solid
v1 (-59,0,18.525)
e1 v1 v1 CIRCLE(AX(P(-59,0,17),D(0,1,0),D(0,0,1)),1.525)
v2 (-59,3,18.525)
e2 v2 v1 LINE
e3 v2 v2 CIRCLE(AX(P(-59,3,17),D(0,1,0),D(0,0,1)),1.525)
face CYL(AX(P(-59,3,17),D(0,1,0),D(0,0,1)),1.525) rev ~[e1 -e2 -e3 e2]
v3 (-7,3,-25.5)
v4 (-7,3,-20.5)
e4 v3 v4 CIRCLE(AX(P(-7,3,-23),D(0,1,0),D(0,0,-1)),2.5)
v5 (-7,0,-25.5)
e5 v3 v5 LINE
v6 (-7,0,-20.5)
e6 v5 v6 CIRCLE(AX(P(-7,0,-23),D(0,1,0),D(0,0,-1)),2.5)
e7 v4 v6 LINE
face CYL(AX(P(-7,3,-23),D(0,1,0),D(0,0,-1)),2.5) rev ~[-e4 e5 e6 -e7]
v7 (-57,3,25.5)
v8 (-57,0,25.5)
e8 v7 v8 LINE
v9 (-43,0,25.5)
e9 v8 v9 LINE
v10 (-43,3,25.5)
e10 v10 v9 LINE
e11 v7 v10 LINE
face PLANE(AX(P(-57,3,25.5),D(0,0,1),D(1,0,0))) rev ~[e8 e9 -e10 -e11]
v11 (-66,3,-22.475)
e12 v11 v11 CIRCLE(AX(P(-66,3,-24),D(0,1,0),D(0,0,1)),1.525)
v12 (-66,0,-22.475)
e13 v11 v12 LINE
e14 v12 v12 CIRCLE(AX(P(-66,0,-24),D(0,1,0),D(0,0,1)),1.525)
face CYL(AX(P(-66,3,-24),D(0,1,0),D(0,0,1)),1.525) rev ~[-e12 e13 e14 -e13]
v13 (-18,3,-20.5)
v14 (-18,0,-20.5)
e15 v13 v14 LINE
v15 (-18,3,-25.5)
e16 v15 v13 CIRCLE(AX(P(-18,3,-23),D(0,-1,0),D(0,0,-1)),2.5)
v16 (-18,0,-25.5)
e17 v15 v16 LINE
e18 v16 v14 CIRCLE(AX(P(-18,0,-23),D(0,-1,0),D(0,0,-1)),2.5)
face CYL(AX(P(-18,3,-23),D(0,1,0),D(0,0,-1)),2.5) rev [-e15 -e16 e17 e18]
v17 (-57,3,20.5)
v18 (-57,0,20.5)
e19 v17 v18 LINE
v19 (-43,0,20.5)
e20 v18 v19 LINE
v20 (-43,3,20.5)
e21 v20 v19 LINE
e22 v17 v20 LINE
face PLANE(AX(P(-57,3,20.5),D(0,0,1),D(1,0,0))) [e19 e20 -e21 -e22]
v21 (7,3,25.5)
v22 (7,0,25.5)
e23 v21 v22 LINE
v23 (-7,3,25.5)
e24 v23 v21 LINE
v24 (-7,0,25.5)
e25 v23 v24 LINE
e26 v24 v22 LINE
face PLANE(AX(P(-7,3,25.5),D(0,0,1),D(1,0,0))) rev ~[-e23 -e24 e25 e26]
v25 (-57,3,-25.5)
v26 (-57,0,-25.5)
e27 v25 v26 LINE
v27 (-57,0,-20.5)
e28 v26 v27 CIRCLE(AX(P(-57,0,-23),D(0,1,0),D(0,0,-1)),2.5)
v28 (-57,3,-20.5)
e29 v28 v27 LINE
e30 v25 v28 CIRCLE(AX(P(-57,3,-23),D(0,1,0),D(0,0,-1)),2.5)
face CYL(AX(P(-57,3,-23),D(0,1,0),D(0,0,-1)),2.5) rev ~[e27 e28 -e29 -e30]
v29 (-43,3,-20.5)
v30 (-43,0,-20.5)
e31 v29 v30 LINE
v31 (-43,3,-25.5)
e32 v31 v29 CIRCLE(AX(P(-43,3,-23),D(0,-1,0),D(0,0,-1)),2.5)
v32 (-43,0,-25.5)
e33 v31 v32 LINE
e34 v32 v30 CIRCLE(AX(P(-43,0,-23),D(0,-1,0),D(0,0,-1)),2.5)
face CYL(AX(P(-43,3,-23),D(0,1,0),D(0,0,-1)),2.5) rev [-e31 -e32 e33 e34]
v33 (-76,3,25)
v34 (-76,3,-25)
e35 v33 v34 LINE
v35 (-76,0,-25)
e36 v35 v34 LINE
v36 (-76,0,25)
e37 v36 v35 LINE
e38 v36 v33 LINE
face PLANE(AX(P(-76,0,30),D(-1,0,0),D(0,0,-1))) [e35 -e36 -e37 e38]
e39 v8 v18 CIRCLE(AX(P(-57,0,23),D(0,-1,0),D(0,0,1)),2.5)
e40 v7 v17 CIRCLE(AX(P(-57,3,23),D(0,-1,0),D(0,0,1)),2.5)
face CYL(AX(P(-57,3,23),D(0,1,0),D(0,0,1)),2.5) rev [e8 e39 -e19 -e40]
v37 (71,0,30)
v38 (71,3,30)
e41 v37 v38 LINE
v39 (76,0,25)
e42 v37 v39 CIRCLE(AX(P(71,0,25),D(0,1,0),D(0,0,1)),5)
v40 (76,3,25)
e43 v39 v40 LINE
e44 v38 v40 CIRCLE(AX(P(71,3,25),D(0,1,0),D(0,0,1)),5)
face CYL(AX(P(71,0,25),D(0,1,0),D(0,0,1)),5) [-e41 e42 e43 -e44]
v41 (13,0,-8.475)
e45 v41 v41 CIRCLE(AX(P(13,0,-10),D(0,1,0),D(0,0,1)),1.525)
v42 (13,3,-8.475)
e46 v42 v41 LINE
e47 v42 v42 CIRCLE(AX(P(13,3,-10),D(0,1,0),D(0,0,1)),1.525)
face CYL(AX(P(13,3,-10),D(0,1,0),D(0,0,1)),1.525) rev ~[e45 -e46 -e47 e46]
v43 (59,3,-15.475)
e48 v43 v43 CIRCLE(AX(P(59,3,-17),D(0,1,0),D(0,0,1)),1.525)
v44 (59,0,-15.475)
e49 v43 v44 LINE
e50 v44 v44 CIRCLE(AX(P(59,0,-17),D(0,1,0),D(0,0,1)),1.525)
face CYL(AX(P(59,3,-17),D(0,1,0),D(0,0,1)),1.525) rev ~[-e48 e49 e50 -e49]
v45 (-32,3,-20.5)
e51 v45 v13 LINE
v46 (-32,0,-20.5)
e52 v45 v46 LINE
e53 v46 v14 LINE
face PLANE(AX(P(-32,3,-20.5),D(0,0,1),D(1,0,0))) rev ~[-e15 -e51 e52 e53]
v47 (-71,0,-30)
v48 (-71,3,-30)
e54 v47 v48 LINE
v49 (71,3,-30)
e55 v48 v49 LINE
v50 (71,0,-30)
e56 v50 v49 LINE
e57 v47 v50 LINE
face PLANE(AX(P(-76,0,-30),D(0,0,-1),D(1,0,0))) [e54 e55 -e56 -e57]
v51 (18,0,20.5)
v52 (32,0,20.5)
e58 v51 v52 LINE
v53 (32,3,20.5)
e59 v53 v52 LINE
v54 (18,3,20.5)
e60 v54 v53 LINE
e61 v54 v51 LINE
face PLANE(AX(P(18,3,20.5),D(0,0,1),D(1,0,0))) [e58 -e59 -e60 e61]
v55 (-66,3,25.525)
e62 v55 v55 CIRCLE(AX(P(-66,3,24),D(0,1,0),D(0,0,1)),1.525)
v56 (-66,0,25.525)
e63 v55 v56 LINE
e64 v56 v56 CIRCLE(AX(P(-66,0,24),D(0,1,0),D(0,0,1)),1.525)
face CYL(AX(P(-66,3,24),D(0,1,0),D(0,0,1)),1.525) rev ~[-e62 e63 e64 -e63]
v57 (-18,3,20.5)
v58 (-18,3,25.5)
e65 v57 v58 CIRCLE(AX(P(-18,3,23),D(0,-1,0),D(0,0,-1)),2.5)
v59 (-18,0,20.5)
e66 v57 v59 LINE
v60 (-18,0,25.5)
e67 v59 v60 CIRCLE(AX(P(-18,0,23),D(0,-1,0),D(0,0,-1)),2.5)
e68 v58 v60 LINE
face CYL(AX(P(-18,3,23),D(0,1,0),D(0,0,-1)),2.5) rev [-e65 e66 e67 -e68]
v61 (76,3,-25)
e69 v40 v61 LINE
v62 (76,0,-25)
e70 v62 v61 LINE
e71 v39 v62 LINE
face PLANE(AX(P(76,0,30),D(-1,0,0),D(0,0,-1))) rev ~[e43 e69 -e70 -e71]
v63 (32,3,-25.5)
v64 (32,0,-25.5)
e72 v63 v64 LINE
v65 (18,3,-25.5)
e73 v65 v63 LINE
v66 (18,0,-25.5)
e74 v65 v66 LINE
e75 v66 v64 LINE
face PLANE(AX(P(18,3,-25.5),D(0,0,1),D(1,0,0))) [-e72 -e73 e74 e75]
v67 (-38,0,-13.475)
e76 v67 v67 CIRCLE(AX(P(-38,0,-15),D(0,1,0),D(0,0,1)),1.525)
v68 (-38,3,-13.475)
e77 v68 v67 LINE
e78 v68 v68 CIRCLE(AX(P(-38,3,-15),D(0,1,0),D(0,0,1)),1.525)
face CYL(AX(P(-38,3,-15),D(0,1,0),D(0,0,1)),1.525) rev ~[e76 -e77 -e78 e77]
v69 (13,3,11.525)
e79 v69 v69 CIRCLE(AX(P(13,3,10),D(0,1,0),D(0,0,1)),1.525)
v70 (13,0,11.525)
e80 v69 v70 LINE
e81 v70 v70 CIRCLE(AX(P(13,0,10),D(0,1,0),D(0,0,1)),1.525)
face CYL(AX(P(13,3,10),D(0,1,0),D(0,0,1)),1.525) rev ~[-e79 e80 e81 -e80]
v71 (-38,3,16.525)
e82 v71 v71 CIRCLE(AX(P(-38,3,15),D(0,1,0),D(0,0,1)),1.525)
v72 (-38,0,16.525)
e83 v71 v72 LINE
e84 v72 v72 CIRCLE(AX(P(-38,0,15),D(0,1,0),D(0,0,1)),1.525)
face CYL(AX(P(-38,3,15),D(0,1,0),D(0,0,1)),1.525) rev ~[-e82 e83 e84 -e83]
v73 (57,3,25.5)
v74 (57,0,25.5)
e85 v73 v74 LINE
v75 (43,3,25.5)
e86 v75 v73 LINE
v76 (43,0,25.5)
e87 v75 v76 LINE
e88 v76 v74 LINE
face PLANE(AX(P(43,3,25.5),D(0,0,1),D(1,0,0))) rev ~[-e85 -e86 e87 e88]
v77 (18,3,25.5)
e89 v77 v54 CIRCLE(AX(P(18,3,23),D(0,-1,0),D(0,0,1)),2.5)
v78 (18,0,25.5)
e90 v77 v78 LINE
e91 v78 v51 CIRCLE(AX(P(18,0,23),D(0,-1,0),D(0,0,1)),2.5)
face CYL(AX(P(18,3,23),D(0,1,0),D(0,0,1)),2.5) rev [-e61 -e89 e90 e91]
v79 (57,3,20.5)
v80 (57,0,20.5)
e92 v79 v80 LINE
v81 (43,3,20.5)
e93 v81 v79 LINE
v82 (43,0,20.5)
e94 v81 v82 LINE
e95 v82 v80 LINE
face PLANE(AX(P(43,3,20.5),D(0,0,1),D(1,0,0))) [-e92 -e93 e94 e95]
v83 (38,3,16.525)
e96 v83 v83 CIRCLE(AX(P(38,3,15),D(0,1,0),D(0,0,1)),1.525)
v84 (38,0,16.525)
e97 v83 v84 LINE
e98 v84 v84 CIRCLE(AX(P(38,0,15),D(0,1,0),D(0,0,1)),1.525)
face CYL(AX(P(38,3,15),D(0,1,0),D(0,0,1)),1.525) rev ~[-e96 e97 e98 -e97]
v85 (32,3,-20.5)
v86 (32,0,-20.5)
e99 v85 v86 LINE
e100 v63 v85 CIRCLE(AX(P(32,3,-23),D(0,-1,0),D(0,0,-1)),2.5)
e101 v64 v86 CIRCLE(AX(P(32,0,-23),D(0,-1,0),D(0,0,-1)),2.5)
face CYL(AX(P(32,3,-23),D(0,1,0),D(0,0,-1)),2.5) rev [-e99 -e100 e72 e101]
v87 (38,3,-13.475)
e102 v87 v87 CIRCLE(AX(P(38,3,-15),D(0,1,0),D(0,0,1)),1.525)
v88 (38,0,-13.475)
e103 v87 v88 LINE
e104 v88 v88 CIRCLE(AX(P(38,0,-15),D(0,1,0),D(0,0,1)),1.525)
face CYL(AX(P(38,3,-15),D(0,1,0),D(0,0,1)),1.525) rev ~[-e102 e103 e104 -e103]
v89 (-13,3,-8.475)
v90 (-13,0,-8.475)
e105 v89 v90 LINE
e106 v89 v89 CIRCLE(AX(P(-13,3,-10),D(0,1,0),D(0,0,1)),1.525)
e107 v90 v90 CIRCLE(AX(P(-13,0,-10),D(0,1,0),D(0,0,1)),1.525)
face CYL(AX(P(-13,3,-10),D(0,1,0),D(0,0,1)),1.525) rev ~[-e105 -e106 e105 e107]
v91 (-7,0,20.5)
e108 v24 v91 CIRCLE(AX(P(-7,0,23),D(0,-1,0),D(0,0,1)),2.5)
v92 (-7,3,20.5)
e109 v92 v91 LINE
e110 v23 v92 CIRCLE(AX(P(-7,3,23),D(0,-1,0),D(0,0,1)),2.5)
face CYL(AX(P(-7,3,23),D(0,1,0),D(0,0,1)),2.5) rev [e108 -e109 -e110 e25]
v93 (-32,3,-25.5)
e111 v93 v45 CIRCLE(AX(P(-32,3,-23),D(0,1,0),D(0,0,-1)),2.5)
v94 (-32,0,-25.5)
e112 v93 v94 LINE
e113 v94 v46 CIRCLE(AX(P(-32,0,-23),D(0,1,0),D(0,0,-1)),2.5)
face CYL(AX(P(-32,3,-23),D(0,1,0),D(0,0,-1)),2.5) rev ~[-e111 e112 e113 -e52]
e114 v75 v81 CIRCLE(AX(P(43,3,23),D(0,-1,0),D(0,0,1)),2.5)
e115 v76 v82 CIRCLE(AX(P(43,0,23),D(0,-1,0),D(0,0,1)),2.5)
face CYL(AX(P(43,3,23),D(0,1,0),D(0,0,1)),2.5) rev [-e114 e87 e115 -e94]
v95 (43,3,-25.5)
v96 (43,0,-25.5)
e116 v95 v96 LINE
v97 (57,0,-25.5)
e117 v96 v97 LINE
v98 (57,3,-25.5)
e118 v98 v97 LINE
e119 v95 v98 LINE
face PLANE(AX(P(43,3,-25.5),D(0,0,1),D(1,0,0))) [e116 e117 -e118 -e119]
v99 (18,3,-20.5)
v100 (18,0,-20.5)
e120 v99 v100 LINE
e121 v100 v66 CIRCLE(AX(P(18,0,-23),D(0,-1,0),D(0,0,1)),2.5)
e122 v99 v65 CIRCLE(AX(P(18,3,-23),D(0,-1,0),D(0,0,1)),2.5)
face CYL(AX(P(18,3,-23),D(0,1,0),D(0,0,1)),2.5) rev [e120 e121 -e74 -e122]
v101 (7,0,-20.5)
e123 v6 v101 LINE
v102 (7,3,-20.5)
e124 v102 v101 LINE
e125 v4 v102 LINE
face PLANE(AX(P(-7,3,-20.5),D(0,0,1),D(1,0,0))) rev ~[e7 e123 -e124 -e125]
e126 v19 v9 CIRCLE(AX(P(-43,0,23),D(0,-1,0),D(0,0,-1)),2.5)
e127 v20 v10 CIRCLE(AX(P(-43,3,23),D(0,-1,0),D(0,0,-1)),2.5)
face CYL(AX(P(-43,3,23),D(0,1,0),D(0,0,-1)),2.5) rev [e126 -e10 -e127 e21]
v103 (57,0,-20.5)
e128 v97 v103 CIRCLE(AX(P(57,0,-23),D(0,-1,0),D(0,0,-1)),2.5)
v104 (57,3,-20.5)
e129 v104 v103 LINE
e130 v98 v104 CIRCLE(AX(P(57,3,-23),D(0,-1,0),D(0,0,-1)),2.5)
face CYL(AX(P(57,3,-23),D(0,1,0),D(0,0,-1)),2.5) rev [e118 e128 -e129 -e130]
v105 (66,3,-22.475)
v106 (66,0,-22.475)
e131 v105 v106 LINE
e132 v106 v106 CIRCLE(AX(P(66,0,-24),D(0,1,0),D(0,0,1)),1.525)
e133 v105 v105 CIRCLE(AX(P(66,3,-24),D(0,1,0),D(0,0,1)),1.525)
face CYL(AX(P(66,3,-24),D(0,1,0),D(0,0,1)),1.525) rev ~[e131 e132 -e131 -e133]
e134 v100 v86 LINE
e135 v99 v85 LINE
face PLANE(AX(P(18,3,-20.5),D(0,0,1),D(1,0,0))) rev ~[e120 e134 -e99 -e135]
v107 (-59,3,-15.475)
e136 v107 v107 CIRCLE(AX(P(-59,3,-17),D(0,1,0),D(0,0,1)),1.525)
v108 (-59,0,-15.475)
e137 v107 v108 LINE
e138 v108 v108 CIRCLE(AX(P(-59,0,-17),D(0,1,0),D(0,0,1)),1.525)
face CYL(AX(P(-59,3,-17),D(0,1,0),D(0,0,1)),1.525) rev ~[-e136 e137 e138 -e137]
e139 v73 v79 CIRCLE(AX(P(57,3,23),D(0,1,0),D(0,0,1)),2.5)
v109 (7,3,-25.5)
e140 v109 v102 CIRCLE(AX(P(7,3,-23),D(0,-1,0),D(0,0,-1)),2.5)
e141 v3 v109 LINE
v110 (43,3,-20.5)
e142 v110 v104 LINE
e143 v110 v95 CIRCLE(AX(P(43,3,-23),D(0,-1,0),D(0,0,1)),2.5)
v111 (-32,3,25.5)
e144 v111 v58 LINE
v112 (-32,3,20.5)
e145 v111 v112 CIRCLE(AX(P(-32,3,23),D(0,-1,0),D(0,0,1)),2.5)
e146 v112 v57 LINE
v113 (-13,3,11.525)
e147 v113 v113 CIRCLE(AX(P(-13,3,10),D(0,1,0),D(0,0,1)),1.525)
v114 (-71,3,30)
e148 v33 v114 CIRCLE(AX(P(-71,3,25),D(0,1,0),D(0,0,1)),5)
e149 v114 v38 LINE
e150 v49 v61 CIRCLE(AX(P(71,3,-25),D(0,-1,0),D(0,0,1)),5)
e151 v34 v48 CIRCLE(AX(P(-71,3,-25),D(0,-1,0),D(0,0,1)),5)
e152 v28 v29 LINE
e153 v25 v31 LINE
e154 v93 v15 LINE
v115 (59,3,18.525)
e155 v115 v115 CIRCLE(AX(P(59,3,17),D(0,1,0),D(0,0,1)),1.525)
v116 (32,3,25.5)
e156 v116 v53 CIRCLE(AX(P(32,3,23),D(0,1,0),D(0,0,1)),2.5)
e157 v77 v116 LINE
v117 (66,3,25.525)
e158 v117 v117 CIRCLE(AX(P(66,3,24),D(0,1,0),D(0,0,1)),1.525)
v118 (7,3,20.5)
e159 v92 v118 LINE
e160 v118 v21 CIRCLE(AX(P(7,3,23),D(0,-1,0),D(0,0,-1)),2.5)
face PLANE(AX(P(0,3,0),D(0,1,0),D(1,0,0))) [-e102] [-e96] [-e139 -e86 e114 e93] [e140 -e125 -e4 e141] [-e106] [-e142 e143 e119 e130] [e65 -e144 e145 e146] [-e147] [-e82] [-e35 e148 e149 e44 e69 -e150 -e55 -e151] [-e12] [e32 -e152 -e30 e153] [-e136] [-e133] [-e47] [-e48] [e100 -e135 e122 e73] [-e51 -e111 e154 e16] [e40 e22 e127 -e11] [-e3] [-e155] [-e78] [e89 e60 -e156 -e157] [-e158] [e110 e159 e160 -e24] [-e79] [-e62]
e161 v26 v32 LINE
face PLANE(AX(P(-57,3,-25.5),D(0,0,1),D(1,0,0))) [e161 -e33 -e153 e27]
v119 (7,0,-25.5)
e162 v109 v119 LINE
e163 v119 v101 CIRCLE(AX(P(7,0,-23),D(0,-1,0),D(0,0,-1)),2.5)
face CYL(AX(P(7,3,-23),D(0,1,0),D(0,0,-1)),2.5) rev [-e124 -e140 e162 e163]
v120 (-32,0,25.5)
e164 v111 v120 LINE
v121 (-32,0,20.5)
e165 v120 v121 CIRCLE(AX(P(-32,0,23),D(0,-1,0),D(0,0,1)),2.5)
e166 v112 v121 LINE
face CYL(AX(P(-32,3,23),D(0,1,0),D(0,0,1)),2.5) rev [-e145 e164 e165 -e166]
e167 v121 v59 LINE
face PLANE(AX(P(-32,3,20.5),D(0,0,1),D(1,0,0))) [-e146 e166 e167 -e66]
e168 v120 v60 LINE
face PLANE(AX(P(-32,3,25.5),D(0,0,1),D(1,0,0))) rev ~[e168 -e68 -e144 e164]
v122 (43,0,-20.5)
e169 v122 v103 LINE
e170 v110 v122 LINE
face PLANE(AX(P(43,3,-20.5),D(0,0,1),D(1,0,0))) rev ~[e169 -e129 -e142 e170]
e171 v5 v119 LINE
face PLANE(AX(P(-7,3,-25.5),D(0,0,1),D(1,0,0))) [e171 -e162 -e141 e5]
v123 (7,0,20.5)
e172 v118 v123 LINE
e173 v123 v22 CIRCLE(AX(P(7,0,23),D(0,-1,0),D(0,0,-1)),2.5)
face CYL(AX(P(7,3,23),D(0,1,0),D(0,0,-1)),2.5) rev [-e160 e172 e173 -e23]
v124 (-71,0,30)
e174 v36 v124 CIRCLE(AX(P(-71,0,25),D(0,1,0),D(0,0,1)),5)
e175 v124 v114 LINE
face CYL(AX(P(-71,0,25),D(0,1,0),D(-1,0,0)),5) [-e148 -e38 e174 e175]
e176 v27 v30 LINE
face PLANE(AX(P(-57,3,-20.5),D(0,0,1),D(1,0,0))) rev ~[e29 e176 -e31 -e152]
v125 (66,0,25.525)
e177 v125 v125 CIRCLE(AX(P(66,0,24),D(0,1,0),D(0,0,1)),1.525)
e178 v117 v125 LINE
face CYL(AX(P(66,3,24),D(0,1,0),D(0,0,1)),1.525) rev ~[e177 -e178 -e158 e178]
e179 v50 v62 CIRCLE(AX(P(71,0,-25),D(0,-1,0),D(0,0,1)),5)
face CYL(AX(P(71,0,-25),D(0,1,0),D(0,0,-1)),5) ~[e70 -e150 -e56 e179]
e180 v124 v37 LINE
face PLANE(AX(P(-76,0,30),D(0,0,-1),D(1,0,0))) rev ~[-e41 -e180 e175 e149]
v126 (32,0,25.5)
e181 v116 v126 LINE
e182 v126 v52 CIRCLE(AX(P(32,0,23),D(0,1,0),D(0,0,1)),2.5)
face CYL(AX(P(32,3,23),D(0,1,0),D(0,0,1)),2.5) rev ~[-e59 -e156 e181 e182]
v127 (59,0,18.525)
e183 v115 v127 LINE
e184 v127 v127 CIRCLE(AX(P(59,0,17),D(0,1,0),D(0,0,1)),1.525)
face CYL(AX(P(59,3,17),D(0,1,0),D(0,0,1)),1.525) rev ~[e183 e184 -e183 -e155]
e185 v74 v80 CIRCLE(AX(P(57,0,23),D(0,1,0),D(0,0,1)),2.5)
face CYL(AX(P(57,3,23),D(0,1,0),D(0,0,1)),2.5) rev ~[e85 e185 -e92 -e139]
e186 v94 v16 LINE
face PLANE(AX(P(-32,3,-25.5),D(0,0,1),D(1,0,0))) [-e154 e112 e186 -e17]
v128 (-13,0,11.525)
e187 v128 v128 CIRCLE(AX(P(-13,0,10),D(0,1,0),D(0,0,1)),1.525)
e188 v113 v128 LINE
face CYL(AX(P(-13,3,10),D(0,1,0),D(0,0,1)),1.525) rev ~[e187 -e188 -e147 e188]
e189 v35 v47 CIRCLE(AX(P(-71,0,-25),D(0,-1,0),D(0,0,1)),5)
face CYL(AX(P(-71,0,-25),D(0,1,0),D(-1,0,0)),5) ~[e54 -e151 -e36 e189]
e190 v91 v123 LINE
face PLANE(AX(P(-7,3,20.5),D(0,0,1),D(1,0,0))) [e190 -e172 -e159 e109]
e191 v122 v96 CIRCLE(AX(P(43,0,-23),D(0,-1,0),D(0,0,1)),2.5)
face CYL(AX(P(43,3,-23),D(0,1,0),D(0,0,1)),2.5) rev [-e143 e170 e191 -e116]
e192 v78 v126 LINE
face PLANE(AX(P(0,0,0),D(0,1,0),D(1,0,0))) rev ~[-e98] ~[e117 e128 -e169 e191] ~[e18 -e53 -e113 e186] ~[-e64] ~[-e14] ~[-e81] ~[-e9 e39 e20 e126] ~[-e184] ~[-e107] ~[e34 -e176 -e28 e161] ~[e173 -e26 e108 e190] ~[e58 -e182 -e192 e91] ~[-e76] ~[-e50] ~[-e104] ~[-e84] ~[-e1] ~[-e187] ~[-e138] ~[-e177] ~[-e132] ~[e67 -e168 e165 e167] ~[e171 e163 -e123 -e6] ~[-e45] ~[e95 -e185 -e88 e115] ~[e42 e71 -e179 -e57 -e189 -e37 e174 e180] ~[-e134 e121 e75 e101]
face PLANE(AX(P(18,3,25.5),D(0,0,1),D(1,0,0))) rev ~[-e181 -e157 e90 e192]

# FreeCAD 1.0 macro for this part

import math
import FreeCAD as App
import Part
import Sketcher
from FreeCAD import Vector
Q = App.Units.Quantity


def edges_at(feature, points):
    """Names of the edges that pass closest to the given points."""
    edges = feature.Shape.Edges
    near = lambda p: min(range(len(edges)), key=lambda i: edges[i].distToShape(Part.Vertex(*p))[0])
    return sorted({f"Edge{near(p) + 1}" for p in points})

doc = App.newDocument("Part")
body = doc.addObject("PartDesign::Body", "Body")

# Sketch on XZ plane
sketch1 = body.newObject("Sketcher::SketchObject", "Sketch")
sketch1.AttachmentSupport = (doc.getObject("XZ_Plane"), [""])
sketch1.MapMode = "FlatFace"
sketch1.addGeometry(Part.LineSegment(Vector(-76, -30, 0), Vector(-76, 30, 0)), False)
sketch1.addGeometry(Part.LineSegment(Vector(-76, 30, 0), Vector(76, 30, 0)), False)
sketch1.addGeometry(Part.LineSegment(Vector(76, 30, 0), Vector(76, -30, 0)), False)
sketch1.addGeometry(Part.LineSegment(Vector(76, -30, 0), Vector(-76, -30, 0)), False)
sketch1.addConstraint(Sketcher.Constraint("Coincident", 0, 2, 1, 1))
sketch1.addConstraint(Sketcher.Constraint("Coincident", 1, 2, 2, 1))
sketch1.addConstraint(Sketcher.Constraint("Coincident", 2, 2, 3, 1))
sketch1.addConstraint(Sketcher.Constraint("Coincident", 3, 2, 0, 1))
sketch1.addConstraint(Sketcher.Constraint("Vertical", 0))
sketch1.addConstraint(Sketcher.Constraint("Horizontal", 1))
sketch1.addConstraint(Sketcher.Constraint("Vertical", 2))
sketch1.addConstraint(Sketcher.Constraint("Horizontal", 3))
sketch1.addConstraint(Sketcher.Constraint("Symmetric", 0, 2, 2, 2, -1, 1))
sketch1.addConstraint(Sketcher.Constraint("DistanceX", 1, 1, 1, 2, Q("152 mm")))
sketch1.addConstraint(Sketcher.Constraint("DistanceY", 0, 1, 0, 2, Q("60 mm")))
pad1 = body.newObject("PartDesign::Pad", "Pad")
pad1.Profile = sketch1
pad1.Length = 3
pad1.Reversed = True

# Sketch on XZ plane
sketch2 = body.newObject("Sketcher::SketchObject", "Sketch001")
sketch2.AttachmentSupport = (doc.getObject("XZ_Plane"), [""])
sketch2.MapMode = "FlatFace"
sketch2.AttachmentOffset = App.Placement(Vector(0, 0, -3), App.Rotation())
sketch2.addGeometry(Part.Circle(Vector(-66, 24, 0), Vector(0, 0, 1), 1.5), False)
sketch2.addConstraint(Sketcher.Constraint("Diameter", 0, Q("3.05 mm")))
sketch2.addConstraint(Sketcher.Constraint("DistanceX", 0, 3, -1, 1, Q("66 mm")))
sketch2.addConstraint(Sketcher.Constraint("DistanceY", -1, 1, 0, 3, Q("24 mm")))
pocket1 = body.newObject("PartDesign::Pocket", "Pocket")
pocket1.Profile = sketch2
pocket1.Type = "UpToFirst"
pocket1.Reversed = True

# Sketch on XZ plane
sketch3 = body.newObject("Sketcher::SketchObject", "Sketch002")
sketch3.AttachmentSupport = (doc.getObject("XZ_Plane"), [""])
sketch3.MapMode = "FlatFace"
sketch3.AttachmentOffset = App.Placement(Vector(0, 0, -3), App.Rotation())
sketch3.addGeometry(Part.Circle(Vector(-66, -24, 0), Vector(0, 0, 1), 1.5), False)
sketch3.addConstraint(Sketcher.Constraint("Diameter", 0, Q("3.05 mm")))
sketch3.addConstraint(Sketcher.Constraint("DistanceX", 0, 3, -1, 1, Q("66 mm")))
sketch3.addConstraint(Sketcher.Constraint("DistanceY", 0, 3, -1, 1, Q("24 mm")))
pocket2 = body.newObject("PartDesign::Pocket", "Pocket001")
pocket2.Profile = sketch3
pocket2.Type = "UpToFirst"
pocket2.Reversed = True

# Sketch on XZ plane
sketch4 = body.newObject("Sketcher::SketchObject", "Sketch003")
sketch4.AttachmentSupport = (doc.getObject("XZ_Plane"), [""])
sketch4.MapMode = "FlatFace"
sketch4.AttachmentOffset = App.Placement(Vector(0, 0, -3), App.Rotation())
sketch4.addGeometry(Part.Circle(Vector(66, 24, 0), Vector(0, 0, 1), 1.5), False)
sketch4.addConstraint(Sketcher.Constraint("Diameter", 0, Q("3.05 mm")))
sketch4.addConstraint(Sketcher.Constraint("DistanceX", -1, 1, 0, 3, Q("66 mm")))
sketch4.addConstraint(Sketcher.Constraint("DistanceY", -1, 1, 0, 3, Q("24 mm")))
pocket3 = body.newObject("PartDesign::Pocket", "Pocket002")
pocket3.Profile = sketch4
pocket3.Type = "UpToFirst"
pocket3.Reversed = True

# Sketch on XZ plane
sketch5 = body.newObject("Sketcher::SketchObject", "Sketch004")
sketch5.AttachmentSupport = (doc.getObject("XZ_Plane"), [""])
sketch5.MapMode = "FlatFace"
sketch5.AttachmentOffset = App.Placement(Vector(0, 0, -3), App.Rotation())
sketch5.addGeometry(Part.Circle(Vector(66, -24, 0), Vector(0, 0, 1), 1.5), False)
sketch5.addConstraint(Sketcher.Constraint("Diameter", 0, Q("3.05 mm")))
sketch5.addConstraint(Sketcher.Constraint("DistanceX", -1, 1, 0, 3, Q("66 mm")))
sketch5.addConstraint(Sketcher.Constraint("DistanceY", 0, 3, -1, 1, Q("24 mm")))
pocket4 = body.newObject("PartDesign::Pocket", "Pocket003")
pocket4.Profile = sketch5
pocket4.Type = "UpToFirst"
pocket4.Reversed = True
doc.recompute()

fillet = body.newObject("PartDesign::Fillet", "Fillet")
fillet.Base = (pocket4, edges_at(pocket4, [
    (76, 1.5, 30),
    (-76, 1.5, 30),
    (-76, 1.5, -30),
    (76, 1.5, -30),
]))
fillet.Radius = 5

# Sketch on XZ plane
sketch6 = body.newObject("Sketcher::SketchObject", "Sketch005")
sketch6.AttachmentSupport = (doc.getObject("XZ_Plane"), [""])
sketch6.MapMode = "FlatFace"
sketch6.AttachmentOffset = App.Placement(Vector(0, 0, -3), App.Rotation())
sketch6.addGeometry(Part.Circle(Vector(-13, -10, 0), Vector(0, 0, 1), 1.5), False)
sketch6.addConstraint(Sketcher.Constraint("Diameter", 0, Q("3.05 mm")))
sketch6.addConstraint(Sketcher.Constraint("DistanceX", 0, 3, -1, 1, Q("13 mm")))
sketch6.addConstraint(Sketcher.Constraint("DistanceY", 0, 3, -1, 1, Q("10 mm")))
pocket5 = body.newObject("PartDesign::Pocket", "Pocket004")
pocket5.Profile = sketch6
pocket5.Type = "UpToFirst"
pocket5.Reversed = True

# Sketch on XZ plane
sketch7 = body.newObject("Sketcher::SketchObject", "Sketch006")
sketch7.AttachmentSupport = (doc.getObject("XZ_Plane"), [""])
sketch7.MapMode = "FlatFace"
sketch7.AttachmentOffset = App.Placement(Vector(0, 0, -3), App.Rotation())
sketch7.addGeometry(Part.Circle(Vector(-38, -15, 0), Vector(0, 0, 1), 1.5), False)
sketch7.addConstraint(Sketcher.Constraint("Diameter", 0, Q("3.05 mm")))
sketch7.addConstraint(Sketcher.Constraint("DistanceX", 0, 3, -1, 1, Q("38 mm")))
sketch7.addConstraint(Sketcher.Constraint("DistanceY", 0, 3, -1, 1, Q("15 mm")))
pocket6 = body.newObject("PartDesign::Pocket", "Pocket005")
pocket6.Profile = sketch7
pocket6.Type = "UpToFirst"
pocket6.Reversed = True

# Sketch on XZ plane
sketch8 = body.newObject("Sketcher::SketchObject", "Sketch007")
sketch8.AttachmentSupport = (doc.getObject("XZ_Plane"), [""])
sketch8.MapMode = "FlatFace"
sketch8.AttachmentOffset = App.Placement(Vector(0, 0, -3), App.Rotation())
sketch8.addGeometry(Part.Circle(Vector(-59, -17, 0), Vector(0, 0, 1), 1.5), False)
sketch8.addConstraint(Sketcher.Constraint("Diameter", 0, Q("3.05 mm")))
sketch8.addConstraint(Sketcher.Constraint("DistanceX", 0, 3, -1, 1, Q("59 mm")))
sketch8.addConstraint(Sketcher.Constraint("DistanceY", 0, 3, -1, 1, Q("17 mm")))
pocket7 = body.newObject("PartDesign::Pocket", "Pocket006")
pocket7.Profile = sketch8
pocket7.Type = "UpToFirst"
pocket7.Reversed = True

# Sketch on XZ plane
sketch9 = body.newObject("Sketcher::SketchObject", "Sketch008")
sketch9.AttachmentSupport = (doc.getObject("XZ_Plane"), [""])
sketch9.MapMode = "FlatFace"
sketch9.AttachmentOffset = App.Placement(Vector(0, 0, -3), App.Rotation())
sketch9.addGeometry(Part.Circle(Vector(-13, 10, 0), Vector(0, 0, 1), 1.5), False)
sketch9.addConstraint(Sketcher.Constraint("Diameter", 0, Q("3.05 mm")))
sketch9.addConstraint(Sketcher.Constraint("DistanceX", 0, 3, -1, 1, Q("13 mm")))
sketch9.addConstraint(Sketcher.Constraint("DistanceY", -1, 1, 0, 3, Q("10 mm")))
pocket8 = body.newObject("PartDesign::Pocket", "Pocket007")
pocket8.Profile = sketch9
pocket8.Type = "UpToFirst"
pocket8.Reversed = True

# Sketch on XZ plane
sketch10 = body.newObject("Sketcher::SketchObject", "Sketch009")
sketch10.AttachmentSupport = (doc.getObject("XZ_Plane"), [""])
sketch10.MapMode = "FlatFace"
sketch10.AttachmentOffset = App.Placement(Vector(0, 0, -3), App.Rotation())
sketch10.addGeometry(Part.Circle(Vector(-38, 15, 0), Vector(0, 0, 1), 1.5), False)
sketch10.addConstraint(Sketcher.Constraint("Diameter", 0, Q("3.05 mm")))
sketch10.addConstraint(Sketcher.Constraint("DistanceX", 0, 3, -1, 1, Q("38 mm")))
sketch10.addConstraint(Sketcher.Constraint("DistanceY", -1, 1, 0, 3, Q("15 mm")))
pocket9 = body.newObject("PartDesign::Pocket", "Pocket008")
pocket9.Profile = sketch10
pocket9.Type = "UpToFirst"
pocket9.Reversed = True

# Sketch on XZ plane
sketch11 = body.newObject("Sketcher::SketchObject", "Sketch010")
sketch11.AttachmentSupport = (doc.getObject("XZ_Plane"), [""])
sketch11.MapMode = "FlatFace"
sketch11.AttachmentOffset = App.Placement(Vector(0, 0, -3), App.Rotation())
sketch11.addGeometry(Part.Circle(Vector(-59, 17, 0), Vector(0, 0, 1), 1.5), False)
sketch11.addConstraint(Sketcher.Constraint("Diameter", 0, Q("3.05 mm")))
sketch11.addConstraint(Sketcher.Constraint("DistanceX", 0, 3, -1, 1, Q("59 mm")))
sketch11.addConstraint(Sketcher.Constraint("DistanceY", -1, 1, 0, 3, Q("17 mm")))
pocket10 = body.newObject("PartDesign::Pocket", "Pocket009")
pocket10.Profile = sketch11
pocket10.Type = "UpToFirst"
pocket10.Reversed = True

# Sketch on XZ plane
sketch12 = body.newObject("Sketcher::SketchObject", "Sketch011")
sketch12.AttachmentSupport = (doc.getObject("XZ_Plane"), [""])
sketch12.MapMode = "FlatFace"
sketch12.AttachmentOffset = App.Placement(Vector(0, 0, -3), App.Rotation())
sketch12.addGeometry(Part.Circle(Vector(13, 10, 0), Vector(0, 0, 1), 1.5), False)
sketch12.addConstraint(Sketcher.Constraint("Diameter", 0, Q("3.05 mm")))
sketch12.addConstraint(Sketcher.Constraint("DistanceX", -1, 1, 0, 3, Q("13 mm")))
sketch12.addConstraint(Sketcher.Constraint("DistanceY", -1, 1, 0, 3, Q("10 mm")))
pocket11 = body.newObject("PartDesign::Pocket", "Pocket010")
pocket11.Profile = sketch12
pocket11.Type = "UpToFirst"
pocket11.Reversed = True

# Sketch on XZ plane
sketch13 = body.newObject("Sketcher::SketchObject", "Sketch012")
sketch13.AttachmentSupport = (doc.getObject("XZ_Plane"), [""])
sketch13.MapMode = "FlatFace"
sketch13.AttachmentOffset = App.Placement(Vector(0, 0, -3), App.Rotation())
sketch13.addGeometry(Part.Circle(Vector(38, 15, 0), Vector(0, 0, 1), 1.5), False)
sketch13.addConstraint(Sketcher.Constraint("Diameter", 0, Q("3.05 mm")))
sketch13.addConstraint(Sketcher.Constraint("DistanceX", -1, 1, 0, 3, Q("38 mm")))
sketch13.addConstraint(Sketcher.Constraint("DistanceY", -1, 1, 0, 3, Q("15 mm")))
pocket12 = body.newObject("PartDesign::Pocket", "Pocket011")
pocket12.Profile = sketch13
pocket12.Type = "UpToFirst"
pocket12.Reversed = True

# Sketch on XZ plane
sketch14 = body.newObject("Sketcher::SketchObject", "Sketch013")
sketch14.AttachmentSupport = (doc.getObject("XZ_Plane"), [""])
sketch14.MapMode = "FlatFace"
sketch14.AttachmentOffset = App.Placement(Vector(0, 0, -3), App.Rotation())
sketch14.addGeometry(Part.Circle(Vector(59, 17, 0), Vector(0, 0, 1), 1.5), False)
sketch14.addConstraint(Sketcher.Constraint("Diameter", 0, Q("3.05 mm")))
sketch14.addConstraint(Sketcher.Constraint("DistanceX", -1, 1, 0, 3, Q("59 mm")))
sketch14.addConstraint(Sketcher.Constraint("DistanceY", -1, 1, 0, 3, Q("17 mm")))
pocket13 = body.newObject("PartDesign::Pocket", "Pocket012")
pocket13.Profile = sketch14
pocket13.Type = "UpToFirst"
pocket13.Reversed = True

# Sketch on XZ plane
sketch15 = body.newObject("Sketcher::SketchObject", "Sketch014")
sketch15.AttachmentSupport = (doc.getObject("XZ_Plane"), [""])
sketch15.MapMode = "FlatFace"
sketch15.AttachmentOffset = App.Placement(Vector(0, 0, -3), App.Rotation())
sketch15.addGeometry(Part.Circle(Vector(13, -10, 0), Vector(0, 0, 1), 1.5), False)
sketch15.addConstraint(Sketcher.Constraint("Diameter", 0, Q("3.05 mm")))
sketch15.addConstraint(Sketcher.Constraint("DistanceX", -1, 1, 0, 3, Q("13 mm")))
sketch15.addConstraint(Sketcher.Constraint("DistanceY", 0, 3, -1, 1, Q("10 mm")))
pocket14 = body.newObject("PartDesign::Pocket", "Pocket013")
pocket14.Profile = sketch15
pocket14.Type = "UpToFirst"
pocket14.Reversed = True

# Sketch on XZ plane
sketch16 = body.newObject("Sketcher::SketchObject", "Sketch015")
sketch16.AttachmentSupport = (doc.getObject("XZ_Plane"), [""])
sketch16.MapMode = "FlatFace"
sketch16.AttachmentOffset = App.Placement(Vector(0, 0, -3), App.Rotation())
sketch16.addGeometry(Part.Circle(Vector(38, -15, 0), Vector(0, 0, 1), 1.5), False)
sketch16.addConstraint(Sketcher.Constraint("Diameter", 0, Q("3.05 mm")))
sketch16.addConstraint(Sketcher.Constraint("DistanceX", -1, 1, 0, 3, Q("38 mm")))
sketch16.addConstraint(Sketcher.Constraint("DistanceY", 0, 3, -1, 1, Q("15 mm")))
pocket15 = body.newObject("PartDesign::Pocket", "Pocket014")
pocket15.Profile = sketch16
pocket15.Type = "UpToFirst"
pocket15.Reversed = True

# Sketch on XZ plane
sketch17 = body.newObject("Sketcher::SketchObject", "Sketch016")
sketch17.AttachmentSupport = (doc.getObject("XZ_Plane"), [""])
sketch17.MapMode = "FlatFace"
sketch17.AttachmentOffset = App.Placement(Vector(0, 0, -3), App.Rotation())
sketch17.addGeometry(Part.Circle(Vector(59, -17, 0), Vector(0, 0, 1), 1.5), False)
sketch17.addConstraint(Sketcher.Constraint("Diameter", 0, Q("3.05 mm")))
sketch17.addConstraint(Sketcher.Constraint("DistanceX", -1, 1, 0, 3, Q("59 mm")))
sketch17.addConstraint(Sketcher.Constraint("DistanceY", 0, 3, -1, 1, Q("17 mm")))
pocket16 = body.newObject("PartDesign::Pocket", "Pocket015")
pocket16.Profile = sketch17
pocket16.Type = "UpToFirst"
pocket16.Reversed = True

# Sketch on XZ plane
sketch18 = body.newObject("Sketcher::SketchObject", "Sketch017")
sketch18.AttachmentSupport = (doc.getObject("XZ_Plane"), [""])
sketch18.MapMode = "FlatFace"
sketch18.AttachmentOffset = App.Placement(Vector(0, 0, -3), App.Rotation())
sketch18.addGeometry(Part.ArcOfCircle(Part.Circle(Vector(-57, 23, 0), Vector(0, 0, 1), 2.5), math.radians(90), math.radians(270)), False)
sketch18.addGeometry(Part.LineSegment(Vector(-57, 25.5, 0), Vector(-43, 25.5, 0)), False)
sketch18.addGeometry(Part.ArcOfCircle(Part.Circle(Vector(-43, 23, 0), Vector(0, 0, 1), 2.5), math.radians(-90), math.radians(90)), False)
sketch18.addGeometry(Part.LineSegment(Vector(-43, 20.5, 0), Vector(-57, 20.5, 0)), False)
sketch18.addGeometry(Part.ArcOfCircle(Part.Circle(Vector(-32, 23, 0), Vector(0, 0, 1), 2.5), math.radians(90), math.radians(270)), False)
sketch18.addGeometry(Part.LineSegment(Vector(-32, 25.5, 0), Vector(-18, 25.5, 0)), False)
sketch18.addGeometry(Part.ArcOfCircle(Part.Circle(Vector(-18, 23, 0), Vector(0, 0, 1), 2.5), math.radians(-90), math.radians(90)), False)
sketch18.addGeometry(Part.LineSegment(Vector(-18, 20.5, 0), Vector(-32, 20.5, 0)), False)
sketch18.addGeometry(Part.ArcOfCircle(Part.Circle(Vector(-7, 23, 0), Vector(0, 0, 1), 2.5), math.radians(90), math.radians(270)), False)
sketch18.addGeometry(Part.LineSegment(Vector(-7, 25.5, 0), Vector(7, 25.5, 0)), False)
sketch18.addGeometry(Part.ArcOfCircle(Part.Circle(Vector(7, 23, 0), Vector(0, 0, 1), 2.5), math.radians(-90), math.radians(90)), False)
sketch18.addGeometry(Part.LineSegment(Vector(7, 20.5, 0), Vector(-7, 20.5, 0)), False)
sketch18.addGeometry(Part.ArcOfCircle(Part.Circle(Vector(18, 23, 0), Vector(0, 0, 1), 2.5), math.radians(90), math.radians(270)), False)
sketch18.addGeometry(Part.LineSegment(Vector(18, 25.5, 0), Vector(32, 25.5, 0)), False)
sketch18.addGeometry(Part.ArcOfCircle(Part.Circle(Vector(32, 23, 0), Vector(0, 0, 1), 2.5), math.radians(-90), math.radians(90)), False)
sketch18.addGeometry(Part.LineSegment(Vector(32, 20.5, 0), Vector(18, 20.5, 0)), False)
sketch18.addGeometry(Part.ArcOfCircle(Part.Circle(Vector(43, 23, 0), Vector(0, 0, 1), 2.5), math.radians(90), math.radians(270)), False)
sketch18.addGeometry(Part.LineSegment(Vector(43, 25.5, 0), Vector(57, 25.5, 0)), False)
sketch18.addGeometry(Part.ArcOfCircle(Part.Circle(Vector(57, 23, 0), Vector(0, 0, 1), 2.5), math.radians(-90), math.radians(90)), False)
sketch18.addGeometry(Part.LineSegment(Vector(57, 20.5, 0), Vector(43, 20.5, 0)), False)
sketch18.addGeometry(Part.ArcOfCircle(Part.Circle(Vector(-57, -23, 0), Vector(0, 0, 1), 2.5), math.radians(90), math.radians(270)), False)
sketch18.addGeometry(Part.LineSegment(Vector(-57, -20.5, 0), Vector(-43, -20.5, 0)), False)
sketch18.addGeometry(Part.ArcOfCircle(Part.Circle(Vector(-43, -23, 0), Vector(0, 0, 1), 2.5), math.radians(-90), math.radians(90)), False)
sketch18.addGeometry(Part.LineSegment(Vector(-43, -25.5, 0), Vector(-57, -25.5, 0)), False)
sketch18.addGeometry(Part.ArcOfCircle(Part.Circle(Vector(-32, -23, 0), Vector(0, 0, 1), 2.5), math.radians(90), math.radians(270)), False)
sketch18.addGeometry(Part.LineSegment(Vector(-32, -20.5, 0), Vector(-18, -20.5, 0)), False)
sketch18.addGeometry(Part.ArcOfCircle(Part.Circle(Vector(-18, -23, 0), Vector(0, 0, 1), 2.5), math.radians(-90), math.radians(90)), False)
sketch18.addGeometry(Part.LineSegment(Vector(-18, -25.5, 0), Vector(-32, -25.5, 0)), False)
sketch18.addGeometry(Part.ArcOfCircle(Part.Circle(Vector(-7, -23, 0), Vector(0, 0, 1), 2.5), math.radians(90), math.radians(270)), False)
sketch18.addGeometry(Part.LineSegment(Vector(-7, -20.5, 0), Vector(7, -20.5, 0)), False)
sketch18.addGeometry(Part.ArcOfCircle(Part.Circle(Vector(7, -23, 0), Vector(0, 0, 1), 2.5), math.radians(-90), math.radians(90)), False)
sketch18.addGeometry(Part.LineSegment(Vector(7, -25.5, 0), Vector(-7, -25.5, 0)), False)
sketch18.addGeometry(Part.ArcOfCircle(Part.Circle(Vector(18, -23, 0), Vector(0, 0, 1), 2.5), math.radians(90), math.radians(270)), False)
sketch18.addGeometry(Part.LineSegment(Vector(18, -20.5, 0), Vector(32, -20.5, 0)), False)
sketch18.addGeometry(Part.ArcOfCircle(Part.Circle(Vector(32, -23, 0), Vector(0, 0, 1), 2.5), math.radians(-90), math.radians(90)), False)
sketch18.addGeometry(Part.LineSegment(Vector(32, -25.5, 0), Vector(18, -25.5, 0)), False)
sketch18.addGeometry(Part.ArcOfCircle(Part.Circle(Vector(43, -23, 0), Vector(0, 0, 1), 2.5), math.radians(90), math.radians(270)), False)
sketch18.addGeometry(Part.LineSegment(Vector(43, -20.5, 0), Vector(57, -20.5, 0)), False)
sketch18.addGeometry(Part.ArcOfCircle(Part.Circle(Vector(57, -23, 0), Vector(0, 0, 1), 2.5), math.radians(-90), math.radians(90)), False)
sketch18.addGeometry(Part.LineSegment(Vector(57, -25.5, 0), Vector(43, -25.5, 0)), False)
sketch18.addConstraint(Sketcher.Constraint("Tangent", 0, 1, 1, 1))
sketch18.addConstraint(Sketcher.Constraint("Tangent", 1, 2, 2, 2))
sketch18.addConstraint(Sketcher.Constraint("Tangent", 2, 1, 3, 1))
sketch18.addConstraint(Sketcher.Constraint("Tangent", 3, 2, 0, 2))
sketch18.addConstraint(Sketcher.Constraint("Tangent", 4, 1, 5, 1))
sketch18.addConstraint(Sketcher.Constraint("Tangent", 5, 2, 6, 2))
sketch18.addConstraint(Sketcher.Constraint("Tangent", 6, 1, 7, 1))
sketch18.addConstraint(Sketcher.Constraint("Tangent", 7, 2, 4, 2))
sketch18.addConstraint(Sketcher.Constraint("Tangent", 8, 1, 9, 1))
sketch18.addConstraint(Sketcher.Constraint("Tangent", 9, 2, 10, 2))
sketch18.addConstraint(Sketcher.Constraint("Tangent", 10, 1, 11, 1))
sketch18.addConstraint(Sketcher.Constraint("Tangent", 11, 2, 8, 2))
sketch18.addConstraint(Sketcher.Constraint("Tangent", 12, 1, 13, 1))
sketch18.addConstraint(Sketcher.Constraint("Tangent", 13, 2, 14, 2))
sketch18.addConstraint(Sketcher.Constraint("Tangent", 14, 1, 15, 1))
sketch18.addConstraint(Sketcher.Constraint("Tangent", 15, 2, 12, 2))
sketch18.addConstraint(Sketcher.Constraint("Tangent", 16, 1, 17, 1))
sketch18.addConstraint(Sketcher.Constraint("Tangent", 17, 2, 18, 2))
sketch18.addConstraint(Sketcher.Constraint("Tangent", 18, 1, 19, 1))
sketch18.addConstraint(Sketcher.Constraint("Tangent", 19, 2, 16, 2))
sketch18.addConstraint(Sketcher.Constraint("Tangent", 20, 1, 21, 1))
sketch18.addConstraint(Sketcher.Constraint("Tangent", 21, 2, 22, 2))
sketch18.addConstraint(Sketcher.Constraint("Tangent", 22, 1, 23, 1))
sketch18.addConstraint(Sketcher.Constraint("Tangent", 23, 2, 20, 2))
sketch18.addConstraint(Sketcher.Constraint("Tangent", 24, 1, 25, 1))
sketch18.addConstraint(Sketcher.Constraint("Tangent", 25, 2, 26, 2))
sketch18.addConstraint(Sketcher.Constraint("Tangent", 26, 1, 27, 1))
sketch18.addConstraint(Sketcher.Constraint("Tangent", 27, 2, 24, 2))
sketch18.addConstraint(Sketcher.Constraint("Tangent", 28, 1, 29, 1))
sketch18.addConstraint(Sketcher.Constraint("Tangent", 29, 2, 30, 2))
sketch18.addConstraint(Sketcher.Constraint("Tangent", 30, 1, 31, 1))
sketch18.addConstraint(Sketcher.Constraint("Tangent", 31, 2, 28, 2))
sketch18.addConstraint(Sketcher.Constraint("Tangent", 32, 1, 33, 1))
sketch18.addConstraint(Sketcher.Constraint("Tangent", 33, 2, 34, 2))
sketch18.addConstraint(Sketcher.Constraint("Tangent", 34, 1, 35, 1))
sketch18.addConstraint(Sketcher.Constraint("Tangent", 35, 2, 32, 2))
sketch18.addConstraint(Sketcher.Constraint("Tangent", 36, 1, 37, 1))
sketch18.addConstraint(Sketcher.Constraint("Tangent", 37, 2, 38, 2))
sketch18.addConstraint(Sketcher.Constraint("Tangent", 38, 1, 39, 1))
sketch18.addConstraint(Sketcher.Constraint("Tangent", 39, 2, 36, 2))
sketch18.addConstraint(Sketcher.Constraint("Horizontal", 1))
sketch18.addConstraint(Sketcher.Constraint("Horizontal", 3))
sketch18.addConstraint(Sketcher.Constraint("Horizontal", 5))
sketch18.addConstraint(Sketcher.Constraint("Horizontal", 7))
sketch18.addConstraint(Sketcher.Constraint("Horizontal", 9))
sketch18.addConstraint(Sketcher.Constraint("Horizontal", 11))
sketch18.addConstraint(Sketcher.Constraint("Horizontal", 13))
sketch18.addConstraint(Sketcher.Constraint("Horizontal", 15))
sketch18.addConstraint(Sketcher.Constraint("Horizontal", 17))
sketch18.addConstraint(Sketcher.Constraint("Horizontal", 19))
sketch18.addConstraint(Sketcher.Constraint("Horizontal", 21))
sketch18.addConstraint(Sketcher.Constraint("Horizontal", 23))
sketch18.addConstraint(Sketcher.Constraint("Horizontal", 25))
sketch18.addConstraint(Sketcher.Constraint("Horizontal", 27))
sketch18.addConstraint(Sketcher.Constraint("Horizontal", 29))
sketch18.addConstraint(Sketcher.Constraint("Horizontal", 31))
sketch18.addConstraint(Sketcher.Constraint("Horizontal", 33))
sketch18.addConstraint(Sketcher.Constraint("Horizontal", 35))
sketch18.addConstraint(Sketcher.Constraint("Horizontal", 37))
sketch18.addConstraint(Sketcher.Constraint("Horizontal", 39))
sketch18.addConstraint(Sketcher.Constraint("Equal", 2, 4))
sketch18.addConstraint(Sketcher.Constraint("Equal", 6, 8))
sketch18.addConstraint(Sketcher.Constraint("Equal", 10, 12))
sketch18.addConstraint(Sketcher.Constraint("Equal", 14, 16))
sketch18.addConstraint(Sketcher.Constraint("Equal", 18, 20))
sketch18.addConstraint(Sketcher.Constraint("Equal", 22, 24))
sketch18.addConstraint(Sketcher.Constraint("Equal", 26, 28))
sketch18.addConstraint(Sketcher.Constraint("Equal", 30, 32))
sketch18.addConstraint(Sketcher.Constraint("Equal", 34, 36))
sketch18.addConstraint(Sketcher.Constraint("Symmetric", 18, 3, 20, 3, -1, 1))
sketch18.addConstraint(Sketcher.Constraint("Symmetric", 14, 3, 24, 3, -1, 1))
sketch18.addConstraint(Sketcher.Constraint("Symmetric", 10, 3, 28, 3, -1, 1))
sketch18.addConstraint(Sketcher.Constraint("Symmetric", 6, 3, 32, 3, -1, 1))
sketch18.addConstraint(Sketcher.Constraint("Symmetric", 2, 3, 36, 3, -1, 1))
sketch18.addConstraint(Sketcher.Constraint("Symmetric", 6, 3, 12, 3, -2))
sketch18.addConstraint(Sketcher.Constraint("Symmetric", 2, 3, 16, 3, -2))
sketch18.addConstraint(Sketcher.Constraint("Horizontal", 2, 3, 4, 3))
sketch18.addConstraint(Sketcher.Constraint("Horizontal", 6, 3, 8, 3))
sketch18.addConstraint(Sketcher.Constraint("Vertical", 0, 3, 20, 3))
sketch18.addConstraint(Sketcher.Constraint("Vertical", 2, 3, 22, 3))
sketch18.addConstraint(Sketcher.Constraint("Vertical", 4, 3, 24, 3))
sketch18.addConstraint(Sketcher.Constraint("Vertical", 6, 3, 26, 3))
sketch18.addConstraint(Sketcher.Constraint("Vertical", 8, 3, 28, 3))
sketch18.addConstraint(Sketcher.Constraint("Vertical", 10, 3, 30, 3))
sketch18.addConstraint(Sketcher.Constraint("Vertical", 14, 3, 34, 3))
sketch18.addConstraint(Sketcher.Constraint("Vertical", 18, 3, 38, 3))
sketch18.addConstraint(Sketcher.Constraint("Equal", 3, 5))
sketch18.addConstraint(Sketcher.Constraint("Equal", 7, 9))
sketch18.addConstraint(Sketcher.Constraint("Radius", 0, Q("2.5 mm")))
sketch18.addConstraint(Sketcher.Constraint("DistanceX", 1, 1, 1, 2, Q("14 mm")))
sketch18.addConstraint(Sketcher.Constraint("DistanceX", 0, 3, -1, 1, Q("57 mm")))
sketch18.addConstraint(Sketcher.Constraint("DistanceY", -1, 1, 0, 3, Q("23 mm")))
sketch18.addConstraint(Sketcher.Constraint("DistanceX", 4, 3, -1, 1, Q("32 mm")))
pocket17 = body.newObject("PartDesign::Pocket", "Pocket016")
pocket17.Profile = sketch18
pocket17.Length = 3
pocket17.Reversed = True

doc.recompute()
